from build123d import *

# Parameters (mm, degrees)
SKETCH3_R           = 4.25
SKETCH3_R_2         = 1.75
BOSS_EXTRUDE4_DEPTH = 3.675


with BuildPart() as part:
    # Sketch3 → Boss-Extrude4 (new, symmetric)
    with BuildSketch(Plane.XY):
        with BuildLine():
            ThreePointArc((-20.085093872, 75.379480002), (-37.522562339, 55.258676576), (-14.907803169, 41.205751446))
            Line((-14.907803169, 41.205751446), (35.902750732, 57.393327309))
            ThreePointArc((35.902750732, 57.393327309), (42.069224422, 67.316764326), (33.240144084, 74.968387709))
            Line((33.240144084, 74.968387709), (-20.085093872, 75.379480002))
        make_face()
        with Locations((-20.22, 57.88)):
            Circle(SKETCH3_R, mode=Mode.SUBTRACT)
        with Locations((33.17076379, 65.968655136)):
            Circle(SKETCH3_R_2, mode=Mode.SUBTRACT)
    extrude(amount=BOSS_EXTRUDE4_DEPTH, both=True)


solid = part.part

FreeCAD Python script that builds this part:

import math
import FreeCAD as App
import Part
import Sketcher

V = App.Vector

doc = App.newDocument("Part")
body = doc.addObject("PartDesign::Body", "Body")

# Sketch on XY plane
sketch1 = body.newObject("Sketcher::SketchObject", "Sketch")
sketch1.AttachmentSupport = (doc.getObject("XY_Plane"), [""])
sketch1.MapMode = "FlatFace"
sketch1.addGeometry([
    Part.ArcOfCircle(Part.Circle(V(-20.2, 57.9, 0), V(0, 0, 1), 17.5), math.radians(90), math.radians(288)),  # 0
    Part.LineSegment(V(-14.9, 41.2, 0), V(35.9, 57.4, 0)),  # 1
    Part.ArcOfCircle(Part.Circle(V(33.2, 66, 0), V(0, 0, 1), 9), math.radians(-72), math.radians(90)),  # 2
    Part.LineSegment(V(33.2, 75, 0), V(-20.1, 75.4, 0)),  # 3
    Part.Circle(V(-20.2, 57.9, 0), V(0, 0, 1), 4.2),  # 4
    Part.Circle(V(33.2, 66, 0), V(0, 0, 1), 1.8),  # 5
], False)
sketch1.addConstraint([
    Sketcher.Constraint("Tangent", 0, 2, 1, 1),
    Sketcher.Constraint("Tangent", 1, 2, 2, 1),
    Sketcher.Constraint("Tangent", 2, 2, 3, 1),
    Sketcher.Constraint("Tangent", 3, 2, 0, 1),
    Sketcher.Constraint("Coincident", 4, 3, 0, 3),
    Sketcher.Constraint("Coincident", 5, 3, 2, 3),
    Sketcher.Constraint("Radius", 2, 9.0),
    Sketcher.Constraint("Diameter", 4, 8.5),
    Sketcher.Constraint("Diameter", 5, 3.5),
    Sketcher.Constraint("Radius", 0, 17.5),
    Sketcher.Constraint("DistanceX", 0, 3, -1, 1, 20.22),
    Sketcher.Constraint("DistanceY", -1, 1, 0, 3, 57.88),
    Sketcher.Constraint("DistanceY", -1, 1, 0, 2, 41.205751),
    Sketcher.Constraint("DistanceX", -1, 1, 1, 2, 35.902751),
])
pad1 = body.newObject("PartDesign::Pad", "Pad")
pad1.Profile = sketch1
pad1.Length = 7.35
pad1.Midplane = True

doc.recompute()
